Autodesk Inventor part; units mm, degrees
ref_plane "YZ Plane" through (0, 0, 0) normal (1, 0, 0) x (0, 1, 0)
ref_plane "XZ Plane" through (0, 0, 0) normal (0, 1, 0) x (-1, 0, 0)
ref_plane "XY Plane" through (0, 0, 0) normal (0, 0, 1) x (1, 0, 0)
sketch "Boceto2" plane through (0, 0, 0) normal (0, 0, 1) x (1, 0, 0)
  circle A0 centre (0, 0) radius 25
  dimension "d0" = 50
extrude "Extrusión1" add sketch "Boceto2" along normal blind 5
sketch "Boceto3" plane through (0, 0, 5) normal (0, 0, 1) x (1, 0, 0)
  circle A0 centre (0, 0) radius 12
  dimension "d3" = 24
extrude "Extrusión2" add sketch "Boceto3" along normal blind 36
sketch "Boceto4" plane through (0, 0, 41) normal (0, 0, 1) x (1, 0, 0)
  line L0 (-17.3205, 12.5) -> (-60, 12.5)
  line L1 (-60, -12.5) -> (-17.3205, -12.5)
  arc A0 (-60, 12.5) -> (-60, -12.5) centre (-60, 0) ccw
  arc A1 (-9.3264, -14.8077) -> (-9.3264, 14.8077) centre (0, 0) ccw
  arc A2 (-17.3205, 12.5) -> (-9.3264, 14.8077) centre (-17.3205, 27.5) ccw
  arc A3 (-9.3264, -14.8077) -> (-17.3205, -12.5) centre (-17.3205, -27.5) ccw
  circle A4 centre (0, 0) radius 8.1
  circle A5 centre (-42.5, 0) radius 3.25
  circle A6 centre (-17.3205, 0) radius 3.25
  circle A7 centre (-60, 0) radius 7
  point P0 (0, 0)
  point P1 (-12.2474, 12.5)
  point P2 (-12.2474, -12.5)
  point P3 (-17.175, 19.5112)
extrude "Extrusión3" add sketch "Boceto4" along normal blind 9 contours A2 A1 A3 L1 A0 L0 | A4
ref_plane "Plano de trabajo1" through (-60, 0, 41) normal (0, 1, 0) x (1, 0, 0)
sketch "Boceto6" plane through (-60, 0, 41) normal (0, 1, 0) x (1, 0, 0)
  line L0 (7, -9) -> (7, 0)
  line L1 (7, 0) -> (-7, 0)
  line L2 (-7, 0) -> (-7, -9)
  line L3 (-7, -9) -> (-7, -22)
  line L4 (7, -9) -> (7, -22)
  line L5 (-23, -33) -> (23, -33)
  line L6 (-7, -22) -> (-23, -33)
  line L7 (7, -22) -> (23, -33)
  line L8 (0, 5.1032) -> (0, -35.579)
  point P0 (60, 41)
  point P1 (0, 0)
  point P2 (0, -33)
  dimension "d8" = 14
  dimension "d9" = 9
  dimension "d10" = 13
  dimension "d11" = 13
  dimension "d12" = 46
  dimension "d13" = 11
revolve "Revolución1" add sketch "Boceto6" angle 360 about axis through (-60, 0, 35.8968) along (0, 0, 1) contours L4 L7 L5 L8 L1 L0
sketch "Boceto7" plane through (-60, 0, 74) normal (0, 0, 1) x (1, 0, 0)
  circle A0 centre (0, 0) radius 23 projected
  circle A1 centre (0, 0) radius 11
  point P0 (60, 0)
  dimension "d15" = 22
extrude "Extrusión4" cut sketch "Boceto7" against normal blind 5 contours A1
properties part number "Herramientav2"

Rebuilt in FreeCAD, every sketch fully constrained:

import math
import FreeCAD as App
import Part
import Sketcher


def add_polygon(sketch, points):
    """Adds a closed chain of lines whose ends are joined by coincident constraints."""
    first, n = sketch.GeometryCount, len(points)
    for a, b in zip(points, points[1:] + points[:1]):
        sketch.addGeometry(Part.LineSegment(App.Vector(*a, 0), App.Vector(*b, 0)), False)
    for i in range(n):
        sketch.addConstraint(Sketcher.Constraint("Coincident", first + i, 2, first + (i + 1) % n, 1))

doc = App.newDocument("Part")
params = doc.addObject("Spreadsheet::Sheet", "Params")
for row, (alias, value) in enumerate([
    ("sketch1_diameter", "50 mm"),
    ("pad1_length", "5 mm"),
    ("sketch2_diameter", "24 mm"),
    ("pad2_length", "36 mm"),
    ("sketch3_diameter", "14 mm"),
    ("sketch3_radius", "15 mm"),
    ("sketch3_diameter2", "6.5 mm"),
    ("sketch3_radius2", "12.5 mm"),
    ("sketch3_radius3", "17.5 mm"),
    ("pad3_length", "9 mm"),
    ("sketch4_width", "7 mm"),
    ("sketch4_width2", "23 mm"),
    ("sketch4_height", "22 mm"),
    ("revolution_angle", "360 deg"),
    ("sketch5_diameter", "22 mm"),
    ("pocket1_length", "5 mm"),
], start=1):
    params.set(f"A{row}", alias)
    params.set(f"B{row}", "=" + value)
    params.setAlias(f"B{row}", alias)

body = doc.addObject("PartDesign::Body", "Body")

# Sketch on XY plane
sketch1 = body.newObject("Sketcher::SketchObject", "Sketch")
sketch1.AttachmentSupport = (doc.getObject("XY_Plane"), [""])
sketch1.MapMode = "FlatFace"
sketch1.addGeometry(Part.Circle(App.Vector(0, 0, 0), App.Vector(0, 0, 1), 25), False)
sketch1.addConstraint([
    Sketcher.Constraint("Coincident", 0, 3, -1, 1),
    Sketcher.Constraint("Diameter", 0, 50.0),
])
sketch1.setExpression("Constraints[1]", "Params.sketch1_diameter")
pad1 = body.newObject("PartDesign::Pad", "Pad")
pad1.Profile = sketch1
pad1.setExpression("Length", "Params.pad1_length")

# Sketch on XY plane
sketch2 = body.newObject("Sketcher::SketchObject", "Sketch001")
sketch2.AttachmentSupport = (doc.getObject("XY_Plane"), [""])
sketch2.MapMode = "FlatFace"
sketch2.AttachmentOffset = App.Placement(App.Vector(0, 0, 5), App.Rotation())
sketch2.addGeometry(Part.Circle(App.Vector(0, 0, 0), App.Vector(0, 0, 1), 12), False)
sketch2.addConstraint([
    Sketcher.Constraint("Coincident", 0, 3, -1, 1),
    Sketcher.Constraint("Diameter", 0, 24.0),
])
sketch2.setExpression("Constraints[1]", "Params.sketch2_diameter")
pad2 = body.newObject("PartDesign::Pad", "Pad001")
pad2.Profile = sketch2
pad2.setExpression("Length", "Params.pad2_length")

# Sketch on XY plane
sketch3 = body.newObject("Sketcher::SketchObject", "Sketch002")
sketch3.AttachmentSupport = (doc.getObject("XY_Plane"), [""])
sketch3.MapMode = "FlatFace"
sketch3.AttachmentOffset = App.Placement(App.Vector(0, 0, 41), App.Rotation())
sketch3.addGeometry([
    Part.ArcOfCircle(Part.Circle(App.Vector(-17.3, 27.5, 0), App.Vector(0, 0, 1), 15), math.radians(-90), math.radians(-58)),  # 0
    Part.LineSegment(App.Vector(-17.3, 12.5, 0), App.Vector(-60, 12.5, 0)),  # 1
    Part.ArcOfCircle(Part.Circle(App.Vector(-60, 0, 0), App.Vector(0, 0, 1), 12.5), math.radians(90), math.radians(270)),  # 2
    Part.LineSegment(App.Vector(-60, -12.5, 0), App.Vector(-17.3, -12.5, 0)),  # 3
    Part.ArcOfCircle(Part.Circle(App.Vector(-17.3, -27.5, 0), App.Vector(0, 0, 1), 15), math.radians(58), math.radians(90)),  # 4
    Part.ArcOfCircle(Part.Circle(App.Vector(0, 0, 0), App.Vector(0, 0, 1), 17.5), math.radians(-122), math.radians(122)),  # 5
    Part.Circle(App.Vector(-60, 0, 0), App.Vector(0, 0, 1), 7),  # 6
    Part.Circle(App.Vector(-42.5, 0, 0), App.Vector(0, 0, 1), 3.2),  # 7
    Part.Circle(App.Vector(-17.3, 0, 0), App.Vector(0, 0, 1), 3.2),  # 8
], False)
sketch3.addConstraint([
    Sketcher.Constraint("Tangent", 0, 1, 1, 1),
    Sketcher.Constraint("Tangent", 1, 2, 2, 1),
    Sketcher.Constraint("Tangent", 2, 2, 3, 1),
    Sketcher.Constraint("Tangent", 3, 2, 4, 2),
    Sketcher.Constraint("Tangent", 4, 1, 5, 1),
    Sketcher.Constraint("Tangent", 5, 2, 0, 2),
    Sketcher.Constraint("Horizontal", 1),
    Sketcher.Constraint("Horizontal", 3),
    Sketcher.Constraint("Coincident", 5, 3, -1, 1),
    Sketcher.Constraint("Coincident", 6, 3, 2, 3),
    Sketcher.Constraint("Equal", 0, 4),
    Sketcher.Constraint("Equal", 7, 8),
    Sketcher.Constraint("PointOnObject", 2, 3, -1),
    Sketcher.Constraint("PointOnObject", 7, 3, -1),
    Sketcher.Constraint("PointOnObject", 8, 3, -1),
    Sketcher.Constraint("Vertical", 4, 3, 8, 3),
    Sketcher.Constraint("Diameter", 6, 14.0),
    Sketcher.Constraint("Radius", 0, 15.0),
    Sketcher.Constraint("Diameter", 7, 6.5),
    Sketcher.Constraint("Radius", 2, 12.5),
    Sketcher.Constraint("Radius", 5, 17.5),
    Sketcher.Constraint("DistanceX", 2, 3, -1, 1, 60.0),
    Sketcher.Constraint("DistanceX", 7, 3, -1, 1, 42.5),
])
sketch3.setExpression("Constraints[16]", "Params.sketch3_diameter")
sketch3.setExpression("Constraints[17]", "Params.sketch3_radius")
sketch3.setExpression("Constraints[18]", "Params.sketch3_diameter2")
sketch3.setExpression("Constraints[19]", "Params.sketch3_radius2")
sketch3.setExpression("Constraints[20]", "Params.sketch3_radius3")
pad3 = body.newObject("PartDesign::Pad", "Pad002")
pad3.Profile = sketch3
pad3.setExpression("Length", "Params.pad3_length")

# Sketch on XZ plane
sketch4 = body.newObject("Sketcher::SketchObject", "Sketch003")
sketch4.AttachmentSupport = (doc.getObject("XZ_Plane"), [""])
sketch4.MapMode = "FlatFace"
add_polygon(sketch4, [(-53, 63), (-53, 41), (-60, 41), (-60, 74), (-37, 74)])  # lines 0-4
sketch4.addGeometry(Part.LineSegment(App.Vector(-60, 41, 0), App.Vector(-60, 74, 0)), True)  # axis
sketch4.addConstraint([
    Sketcher.Constraint("Vertical", 0),
    Sketcher.Constraint("Horizontal", 1),
    Sketcher.Constraint("Vertical", 2),
    Sketcher.Constraint("Horizontal", 3),
    Sketcher.Constraint("Vertical", 5),
    Sketcher.Constraint("Coincident", 5, 1, 1, 2),
    Sketcher.Constraint("Horizontal", 3, 2, 5, 2),
    Sketcher.Constraint("DistanceY", 4, 2, 2, 2, 11.0),
    Sketcher.Constraint("DistanceX", 1, 2, 1, 1, 7.0),
    Sketcher.Constraint("DistanceX", 3, 1, 3, 2, 23.0),
    Sketcher.Constraint("DistanceY", 0, 2, 0, 1, 22.0),
    Sketcher.Constraint("DistanceX", 0, 2, -1, 1, 53.0),
    Sketcher.Constraint("DistanceY", -1, 1, 0, 2, 41.0),
])
sketch4.setExpression("Constraints[13]", "Params.sketch4_width")
sketch4.setExpression("Constraints[14]", "Params.sketch4_width2")
sketch4.setExpression("Constraints[15]", "Params.sketch4_height")
revolution = body.newObject("PartDesign::Revolution", "Revolution")
revolution.Profile = sketch4
revolution.ReferenceAxis = (sketch4, ["Axis0"])
revolution.setExpression("Angle", "Params.revolution_angle")

# Sketch on XY plane
sketch5 = body.newObject("Sketcher::SketchObject", "Sketch004")
sketch5.AttachmentSupport = (doc.getObject("XY_Plane"), [""])
sketch5.MapMode = "FlatFace"
sketch5.AttachmentOffset = App.Placement(App.Vector(0, 0, 74), App.Rotation())
sketch5.addGeometry(Part.Circle(App.Vector(-60, 0, 0), App.Vector(0, 0, 1), 11), False)
sketch5.addConstraint([
    Sketcher.Constraint("PointOnObject", 0, 3, -1),
    Sketcher.Constraint("Diameter", 0, 22.0),
    Sketcher.Constraint("DistanceX", 0, 3, -1, 1, 60.0),
])
sketch5.setExpression("Constraints[1]", "Params.sketch5_diameter")
pocket1 = body.newObject("PartDesign::Pocket", "Pocket")
pocket1.Profile = sketch5
pocket1.setExpression("Length", "Params.pocket1_length")

doc.recompute()
